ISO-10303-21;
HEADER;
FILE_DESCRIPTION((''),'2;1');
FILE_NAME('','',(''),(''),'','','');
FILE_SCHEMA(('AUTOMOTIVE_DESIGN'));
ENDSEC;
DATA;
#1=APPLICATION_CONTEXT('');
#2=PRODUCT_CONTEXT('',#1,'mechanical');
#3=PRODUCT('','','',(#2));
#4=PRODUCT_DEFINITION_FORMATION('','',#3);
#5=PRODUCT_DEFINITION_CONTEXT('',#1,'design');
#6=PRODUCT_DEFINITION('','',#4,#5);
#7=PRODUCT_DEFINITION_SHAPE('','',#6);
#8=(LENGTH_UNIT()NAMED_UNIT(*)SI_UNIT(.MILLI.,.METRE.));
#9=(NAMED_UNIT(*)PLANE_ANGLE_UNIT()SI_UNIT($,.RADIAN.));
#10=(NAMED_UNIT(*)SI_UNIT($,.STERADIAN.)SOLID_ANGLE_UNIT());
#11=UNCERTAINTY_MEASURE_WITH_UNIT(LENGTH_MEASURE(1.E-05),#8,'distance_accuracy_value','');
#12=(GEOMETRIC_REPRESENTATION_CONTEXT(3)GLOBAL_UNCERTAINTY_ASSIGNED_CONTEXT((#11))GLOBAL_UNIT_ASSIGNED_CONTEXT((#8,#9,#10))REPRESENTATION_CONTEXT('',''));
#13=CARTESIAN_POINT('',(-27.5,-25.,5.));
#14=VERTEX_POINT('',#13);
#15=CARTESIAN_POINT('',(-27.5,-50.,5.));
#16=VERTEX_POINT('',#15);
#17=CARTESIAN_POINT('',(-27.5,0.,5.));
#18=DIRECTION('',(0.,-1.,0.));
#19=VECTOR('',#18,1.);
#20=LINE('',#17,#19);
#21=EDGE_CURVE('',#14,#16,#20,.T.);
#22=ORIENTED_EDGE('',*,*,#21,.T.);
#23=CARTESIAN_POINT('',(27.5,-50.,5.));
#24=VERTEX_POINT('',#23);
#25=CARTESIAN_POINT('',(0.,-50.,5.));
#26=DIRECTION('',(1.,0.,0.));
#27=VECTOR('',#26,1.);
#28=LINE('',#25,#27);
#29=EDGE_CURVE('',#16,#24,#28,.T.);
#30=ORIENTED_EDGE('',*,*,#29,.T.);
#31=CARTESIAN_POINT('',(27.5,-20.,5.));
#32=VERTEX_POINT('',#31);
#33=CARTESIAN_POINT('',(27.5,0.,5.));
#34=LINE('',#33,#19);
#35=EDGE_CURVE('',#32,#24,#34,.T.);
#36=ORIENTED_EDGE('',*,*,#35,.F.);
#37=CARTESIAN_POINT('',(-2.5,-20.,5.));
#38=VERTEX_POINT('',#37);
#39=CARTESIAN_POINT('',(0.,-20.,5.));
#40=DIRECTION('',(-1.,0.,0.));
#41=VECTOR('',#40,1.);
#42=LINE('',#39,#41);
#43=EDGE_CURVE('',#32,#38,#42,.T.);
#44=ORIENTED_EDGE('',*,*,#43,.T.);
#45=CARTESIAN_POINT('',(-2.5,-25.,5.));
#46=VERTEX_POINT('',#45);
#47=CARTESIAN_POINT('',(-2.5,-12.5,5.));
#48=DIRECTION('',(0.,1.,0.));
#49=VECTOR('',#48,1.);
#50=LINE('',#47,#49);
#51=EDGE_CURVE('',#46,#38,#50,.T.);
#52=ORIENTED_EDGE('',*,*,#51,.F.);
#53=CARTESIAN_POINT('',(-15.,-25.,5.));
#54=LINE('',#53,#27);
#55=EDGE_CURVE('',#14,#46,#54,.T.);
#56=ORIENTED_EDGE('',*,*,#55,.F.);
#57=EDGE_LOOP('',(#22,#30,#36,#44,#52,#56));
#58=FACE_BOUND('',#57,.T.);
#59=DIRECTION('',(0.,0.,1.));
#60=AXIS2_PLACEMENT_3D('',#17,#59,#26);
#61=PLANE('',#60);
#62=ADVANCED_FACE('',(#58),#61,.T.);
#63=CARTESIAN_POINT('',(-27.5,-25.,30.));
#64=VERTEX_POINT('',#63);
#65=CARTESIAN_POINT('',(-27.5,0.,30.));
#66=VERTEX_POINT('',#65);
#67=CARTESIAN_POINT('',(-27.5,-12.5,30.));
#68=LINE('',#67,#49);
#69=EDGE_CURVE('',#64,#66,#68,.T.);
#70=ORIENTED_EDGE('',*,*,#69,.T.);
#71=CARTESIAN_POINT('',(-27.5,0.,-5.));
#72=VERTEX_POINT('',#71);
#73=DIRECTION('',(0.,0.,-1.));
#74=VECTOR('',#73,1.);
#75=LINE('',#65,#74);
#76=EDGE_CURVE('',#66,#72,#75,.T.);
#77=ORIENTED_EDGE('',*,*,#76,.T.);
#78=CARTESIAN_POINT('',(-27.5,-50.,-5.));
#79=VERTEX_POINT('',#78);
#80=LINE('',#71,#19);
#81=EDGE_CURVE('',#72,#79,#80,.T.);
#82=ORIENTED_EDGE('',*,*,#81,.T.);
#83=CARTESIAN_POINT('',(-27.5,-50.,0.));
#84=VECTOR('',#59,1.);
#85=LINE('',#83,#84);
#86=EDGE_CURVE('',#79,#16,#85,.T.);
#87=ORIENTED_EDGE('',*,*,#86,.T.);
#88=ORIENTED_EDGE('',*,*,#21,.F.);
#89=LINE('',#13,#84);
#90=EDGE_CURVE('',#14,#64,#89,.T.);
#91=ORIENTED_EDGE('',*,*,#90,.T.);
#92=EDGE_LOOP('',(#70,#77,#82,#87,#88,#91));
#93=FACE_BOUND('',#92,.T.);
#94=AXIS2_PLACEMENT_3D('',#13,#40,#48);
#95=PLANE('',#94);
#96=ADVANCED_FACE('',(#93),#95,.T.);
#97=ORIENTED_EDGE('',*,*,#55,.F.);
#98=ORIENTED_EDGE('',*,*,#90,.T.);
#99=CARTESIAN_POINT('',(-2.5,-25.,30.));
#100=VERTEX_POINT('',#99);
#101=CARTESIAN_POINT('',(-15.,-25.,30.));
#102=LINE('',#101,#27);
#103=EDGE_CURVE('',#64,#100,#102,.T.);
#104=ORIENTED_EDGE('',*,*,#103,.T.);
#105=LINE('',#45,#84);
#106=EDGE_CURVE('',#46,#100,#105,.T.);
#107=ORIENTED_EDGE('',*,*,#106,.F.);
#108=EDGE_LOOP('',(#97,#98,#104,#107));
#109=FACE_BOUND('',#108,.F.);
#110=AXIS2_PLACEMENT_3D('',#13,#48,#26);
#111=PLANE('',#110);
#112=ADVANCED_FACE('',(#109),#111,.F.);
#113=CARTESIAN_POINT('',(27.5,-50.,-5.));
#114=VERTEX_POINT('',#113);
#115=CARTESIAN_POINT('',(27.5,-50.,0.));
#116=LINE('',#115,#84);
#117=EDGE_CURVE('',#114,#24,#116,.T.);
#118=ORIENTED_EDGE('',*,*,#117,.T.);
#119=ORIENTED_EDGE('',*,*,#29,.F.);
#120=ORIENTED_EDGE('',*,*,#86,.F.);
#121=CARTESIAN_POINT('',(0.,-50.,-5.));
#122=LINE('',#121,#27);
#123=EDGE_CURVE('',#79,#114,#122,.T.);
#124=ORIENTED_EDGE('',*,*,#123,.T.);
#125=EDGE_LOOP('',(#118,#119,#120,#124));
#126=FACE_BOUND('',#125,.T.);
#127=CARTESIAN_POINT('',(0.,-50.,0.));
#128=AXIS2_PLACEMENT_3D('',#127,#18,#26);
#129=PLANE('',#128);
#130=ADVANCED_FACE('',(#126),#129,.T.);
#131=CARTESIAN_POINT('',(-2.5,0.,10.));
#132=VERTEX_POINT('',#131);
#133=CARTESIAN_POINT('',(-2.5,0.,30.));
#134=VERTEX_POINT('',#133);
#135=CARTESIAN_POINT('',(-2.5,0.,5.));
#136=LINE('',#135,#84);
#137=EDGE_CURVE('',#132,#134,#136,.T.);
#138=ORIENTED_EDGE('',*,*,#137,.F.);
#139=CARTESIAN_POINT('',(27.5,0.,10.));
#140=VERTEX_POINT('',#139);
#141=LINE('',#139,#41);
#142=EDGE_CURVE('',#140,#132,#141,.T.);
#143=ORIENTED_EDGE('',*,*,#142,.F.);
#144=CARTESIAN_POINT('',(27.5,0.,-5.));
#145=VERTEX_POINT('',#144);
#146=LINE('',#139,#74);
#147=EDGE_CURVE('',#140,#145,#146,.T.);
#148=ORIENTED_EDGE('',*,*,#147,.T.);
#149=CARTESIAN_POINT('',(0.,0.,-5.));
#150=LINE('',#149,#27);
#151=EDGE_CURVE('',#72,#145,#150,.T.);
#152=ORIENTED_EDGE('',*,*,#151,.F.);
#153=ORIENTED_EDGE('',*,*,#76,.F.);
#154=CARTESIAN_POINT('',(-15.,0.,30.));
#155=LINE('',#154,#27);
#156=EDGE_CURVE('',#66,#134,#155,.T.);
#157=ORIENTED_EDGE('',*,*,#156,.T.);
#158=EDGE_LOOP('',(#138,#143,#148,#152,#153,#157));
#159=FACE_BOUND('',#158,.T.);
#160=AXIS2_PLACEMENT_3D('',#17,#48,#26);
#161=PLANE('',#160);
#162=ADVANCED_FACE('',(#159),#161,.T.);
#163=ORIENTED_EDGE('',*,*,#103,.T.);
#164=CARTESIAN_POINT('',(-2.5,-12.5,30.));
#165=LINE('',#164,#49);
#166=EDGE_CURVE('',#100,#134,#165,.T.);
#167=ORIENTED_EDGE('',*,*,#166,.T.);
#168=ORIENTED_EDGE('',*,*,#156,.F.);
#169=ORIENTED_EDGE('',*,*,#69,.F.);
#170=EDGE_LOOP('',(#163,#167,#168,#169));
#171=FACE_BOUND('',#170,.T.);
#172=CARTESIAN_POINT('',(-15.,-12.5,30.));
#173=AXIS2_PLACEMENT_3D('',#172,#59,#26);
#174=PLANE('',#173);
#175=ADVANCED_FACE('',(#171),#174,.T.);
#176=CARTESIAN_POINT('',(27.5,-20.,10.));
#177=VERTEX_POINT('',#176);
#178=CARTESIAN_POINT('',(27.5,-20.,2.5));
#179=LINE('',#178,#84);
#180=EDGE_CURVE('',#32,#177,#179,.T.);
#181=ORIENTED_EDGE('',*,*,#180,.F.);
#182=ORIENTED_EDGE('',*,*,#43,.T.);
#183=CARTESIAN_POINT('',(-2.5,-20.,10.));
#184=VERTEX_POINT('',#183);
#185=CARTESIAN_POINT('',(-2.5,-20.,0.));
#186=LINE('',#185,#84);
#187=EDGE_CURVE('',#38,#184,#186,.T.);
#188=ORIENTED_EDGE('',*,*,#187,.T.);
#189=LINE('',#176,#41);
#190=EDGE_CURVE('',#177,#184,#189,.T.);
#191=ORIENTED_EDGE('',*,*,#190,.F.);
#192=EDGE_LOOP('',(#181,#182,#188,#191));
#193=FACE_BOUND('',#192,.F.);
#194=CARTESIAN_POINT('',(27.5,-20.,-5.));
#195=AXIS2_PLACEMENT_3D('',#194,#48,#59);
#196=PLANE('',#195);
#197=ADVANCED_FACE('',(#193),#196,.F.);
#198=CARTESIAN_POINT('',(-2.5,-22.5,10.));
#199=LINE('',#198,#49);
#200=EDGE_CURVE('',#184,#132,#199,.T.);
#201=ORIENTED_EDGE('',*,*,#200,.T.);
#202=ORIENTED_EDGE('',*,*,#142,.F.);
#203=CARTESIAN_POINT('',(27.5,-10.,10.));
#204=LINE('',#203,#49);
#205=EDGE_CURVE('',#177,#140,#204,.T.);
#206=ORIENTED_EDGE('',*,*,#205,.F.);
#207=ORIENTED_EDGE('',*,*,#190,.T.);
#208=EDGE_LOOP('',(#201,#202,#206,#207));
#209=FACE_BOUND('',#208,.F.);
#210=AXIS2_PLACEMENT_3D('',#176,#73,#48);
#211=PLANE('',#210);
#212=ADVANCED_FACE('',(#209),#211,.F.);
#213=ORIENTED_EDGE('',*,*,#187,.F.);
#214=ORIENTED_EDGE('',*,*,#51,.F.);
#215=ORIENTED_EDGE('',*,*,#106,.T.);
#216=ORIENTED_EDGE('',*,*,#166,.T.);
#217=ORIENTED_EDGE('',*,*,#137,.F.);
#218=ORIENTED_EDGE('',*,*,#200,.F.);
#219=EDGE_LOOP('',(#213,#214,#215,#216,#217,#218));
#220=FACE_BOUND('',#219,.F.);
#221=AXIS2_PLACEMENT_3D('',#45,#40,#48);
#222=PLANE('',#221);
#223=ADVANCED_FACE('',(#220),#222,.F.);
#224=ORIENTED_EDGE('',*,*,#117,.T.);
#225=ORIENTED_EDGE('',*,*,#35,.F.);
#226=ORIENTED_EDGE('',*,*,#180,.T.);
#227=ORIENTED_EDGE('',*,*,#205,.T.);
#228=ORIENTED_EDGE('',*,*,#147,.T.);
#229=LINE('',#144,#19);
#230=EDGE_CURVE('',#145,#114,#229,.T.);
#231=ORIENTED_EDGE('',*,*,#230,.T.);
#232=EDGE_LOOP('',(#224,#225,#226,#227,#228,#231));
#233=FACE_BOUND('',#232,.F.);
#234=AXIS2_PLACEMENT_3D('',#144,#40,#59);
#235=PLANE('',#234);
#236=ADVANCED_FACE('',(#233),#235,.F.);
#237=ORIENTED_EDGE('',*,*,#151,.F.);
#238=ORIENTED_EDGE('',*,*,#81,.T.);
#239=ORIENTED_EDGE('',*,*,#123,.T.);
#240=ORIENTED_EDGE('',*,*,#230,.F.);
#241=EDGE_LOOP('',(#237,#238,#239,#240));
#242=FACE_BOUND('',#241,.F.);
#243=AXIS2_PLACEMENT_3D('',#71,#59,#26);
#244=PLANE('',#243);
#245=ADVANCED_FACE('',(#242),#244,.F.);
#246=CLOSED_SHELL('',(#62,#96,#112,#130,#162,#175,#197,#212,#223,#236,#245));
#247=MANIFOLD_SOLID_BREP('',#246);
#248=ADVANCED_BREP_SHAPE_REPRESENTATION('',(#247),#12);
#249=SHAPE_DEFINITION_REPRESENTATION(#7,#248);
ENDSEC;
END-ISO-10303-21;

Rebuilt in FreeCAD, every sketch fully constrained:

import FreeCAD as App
import Part
import Sketcher

doc = App.newDocument("Part")
params = doc.addObject("Spreadsheet::Sheet", "Params")
for row, (alias, value) in enumerate([
    ("sketch1_width", "55 mm"),
    ("sketch1_height", "10 mm"),
    ("pad1_length", "50 mm"),
    ("sketch2_width", "20 mm"),
    ("sketch2_height", "15 mm"),
    ("pad2_length", "55 mm"),
    ("sketch3_width", "25 mm"),
    ("pad3_length", "25 mm"),
], start=1):
    params.set(f"A{row}", alias)
    params.set(f"B{row}", "=" + value)
    params.setAlias(f"B{row}", alias)

body = doc.addObject("PartDesign::Body", "Body")

# Sketch on XZ plane
sketch1 = body.newObject("Sketcher::SketchObject", "Sketch")
sketch1.AttachmentSupport = (doc.getObject("XZ_Plane"), [""])
sketch1.MapMode = "FlatFace"
sketch1.addGeometry(Part.LineSegment(App.Vector(-28, 5, 0), App.Vector(-28, -5, 0)), False)
sketch1.addGeometry(Part.LineSegment(App.Vector(-28, -5, 0), App.Vector(28, -5, 0)), False)
sketch1.addGeometry(Part.LineSegment(App.Vector(28, -5, 0), App.Vector(28, 5, 0)), False)
sketch1.addGeometry(Part.LineSegment(App.Vector(28, 5, 0), App.Vector(-28, 5, 0)), False)
sketch1.addConstraint(Sketcher.Constraint("Coincident", 0, 2, 1, 1))
sketch1.addConstraint(Sketcher.Constraint("Coincident", 1, 2, 2, 1))
sketch1.addConstraint(Sketcher.Constraint("Coincident", 2, 2, 3, 1))
sketch1.addConstraint(Sketcher.Constraint("Coincident", 3, 2, 0, 1))
sketch1.addConstraint(Sketcher.Constraint("Vertical", 0))
sketch1.addConstraint(Sketcher.Constraint("Horizontal", 1))
sketch1.addConstraint(Sketcher.Constraint("Vertical", 2))
sketch1.addConstraint(Sketcher.Constraint("Horizontal", 3))
sketch1.addConstraint(Sketcher.Constraint("Symmetric", 0, 2, 2, 2, -1, 1))
sketch1.addConstraint(Sketcher.Constraint("DistanceX", 1, 1, 1, 2, 55.0))
sketch1.addConstraint(Sketcher.Constraint("DistanceY", 0, 2, 0, 1, 10.0))
sketch1.setExpression("Constraints[9]", "Params.sketch1_width")
sketch1.setExpression("Constraints[10]", "Params.sketch1_height")
pad1 = body.newObject("PartDesign::Pad", "Pad")
pad1.Profile = sketch1
pad1.setExpression("Length", "Params.pad1_length")

# Sketch on YZ plane
sketch2 = body.newObject("Sketcher::SketchObject", "Sketch001")
sketch2.AttachmentSupport = (doc.getObject("YZ_Plane"), [""])
sketch2.MapMode = "FlatFace"
sketch2.AttachmentOffset = App.Placement(App.Vector(0, 0, 27.5), App.Rotation())
sketch2.addGeometry(Part.LineSegment(App.Vector(-20, 10, 0), App.Vector(-20, -5, 0)), False)
sketch2.addGeometry(Part.LineSegment(App.Vector(-20, -5, 0), App.Vector(0, -5, 0)), False)
sketch2.addGeometry(Part.LineSegment(App.Vector(0, -5, 0), App.Vector(0, 10, 0)), False)
sketch2.addGeometry(Part.LineSegment(App.Vector(0, 10, 0), App.Vector(-20, 10, 0)), False)
sketch2.addConstraint(Sketcher.Constraint("Coincident", 0, 2, 1, 1))
sketch2.addConstraint(Sketcher.Constraint("Coincident", 1, 2, 2, 1))
sketch2.addConstraint(Sketcher.Constraint("Coincident", 2, 2, 3, 1))
sketch2.addConstraint(Sketcher.Constraint("Coincident", 3, 2, 0, 1))
sketch2.addConstraint(Sketcher.Constraint("Vertical", 0))
sketch2.addConstraint(Sketcher.Constraint("Horizontal", 1))
sketch2.addConstraint(Sketcher.Constraint("Vertical", 2))
sketch2.addConstraint(Sketcher.Constraint("Horizontal", 3))
sketch2.addConstraint(Sketcher.Constraint("PointOnObject", 1, 2, -2))
sketch2.addConstraint(Sketcher.Constraint("DistanceX", 1, 1, 1, 2, 20.0))
sketch2.addConstraint(Sketcher.Constraint("DistanceY", 0, 2, 0, 1, 15.0))
sketch2.addConstraint(Sketcher.Constraint("DistanceY", 0, 2, -1, 1, 5.0))
sketch2.setExpression("Constraints[9]", "Params.sketch2_width")
sketch2.setExpression("Constraints[10]", "Params.sketch2_height")
pad2 = body.newObject("PartDesign::Pad", "Pad001")
pad2.Profile = sketch2
pad2.setExpression("Length", "Params.pad2_length")
pad2.Reversed = True

# Sketch on XY plane
sketch3 = body.newObject("Sketcher::SketchObject", "Sketch002")
sketch3.AttachmentSupport = (doc.getObject("XY_Plane"), [""])
sketch3.MapMode = "FlatFace"
sketch3.AttachmentOffset = App.Placement(App.Vector(0, 0, 5), App.Rotation())
sketch3.addGeometry(Part.LineSegment(App.Vector(-28, 0, 0), App.Vector(-28, -25, 0)), False)
sketch3.addGeometry(Part.LineSegment(App.Vector(-28, -25, 0), App.Vector(-2, -25, 0)), False)
sketch3.addGeometry(Part.LineSegment(App.Vector(-2, -25, 0), App.Vector(-2, 0, 0)), False)
sketch3.addGeometry(Part.LineSegment(App.Vector(-2, 0, 0), App.Vector(-28, 0, 0)), False)
sketch3.addConstraint(Sketcher.Constraint("Coincident", 0, 2, 1, 1))
sketch3.addConstraint(Sketcher.Constraint("Coincident", 1, 2, 2, 1))
sketch3.addConstraint(Sketcher.Constraint("Coincident", 2, 2, 3, 1))
sketch3.addConstraint(Sketcher.Constraint("Coincident", 3, 2, 0, 1))
sketch3.addConstraint(Sketcher.Constraint("Vertical", 0))
sketch3.addConstraint(Sketcher.Constraint("Horizontal", 1))
sketch3.addConstraint(Sketcher.Constraint("Vertical", 2))
sketch3.addConstraint(Sketcher.Constraint("Horizontal", 3))
sketch3.addConstraint(Sketcher.Constraint("PointOnObject", 2, 2, -1))
sketch3.addConstraint(Sketcher.Constraint("Equal", 3, 0))
sketch3.addConstraint(Sketcher.Constraint("DistanceX", 1, 1, 1, 2, 25.0))
sketch3.addConstraint(Sketcher.Constraint("DistanceX", 0, 2, -1, 1, 27.5))
sketch3.setExpression("Constraints[10]", "Params.sketch3_width")
pad3 = body.newObject("PartDesign::Pad", "Pad002")
pad3.Profile = sketch3
pad3.setExpression("Length", "Params.pad3_length")

doc.recompute()
